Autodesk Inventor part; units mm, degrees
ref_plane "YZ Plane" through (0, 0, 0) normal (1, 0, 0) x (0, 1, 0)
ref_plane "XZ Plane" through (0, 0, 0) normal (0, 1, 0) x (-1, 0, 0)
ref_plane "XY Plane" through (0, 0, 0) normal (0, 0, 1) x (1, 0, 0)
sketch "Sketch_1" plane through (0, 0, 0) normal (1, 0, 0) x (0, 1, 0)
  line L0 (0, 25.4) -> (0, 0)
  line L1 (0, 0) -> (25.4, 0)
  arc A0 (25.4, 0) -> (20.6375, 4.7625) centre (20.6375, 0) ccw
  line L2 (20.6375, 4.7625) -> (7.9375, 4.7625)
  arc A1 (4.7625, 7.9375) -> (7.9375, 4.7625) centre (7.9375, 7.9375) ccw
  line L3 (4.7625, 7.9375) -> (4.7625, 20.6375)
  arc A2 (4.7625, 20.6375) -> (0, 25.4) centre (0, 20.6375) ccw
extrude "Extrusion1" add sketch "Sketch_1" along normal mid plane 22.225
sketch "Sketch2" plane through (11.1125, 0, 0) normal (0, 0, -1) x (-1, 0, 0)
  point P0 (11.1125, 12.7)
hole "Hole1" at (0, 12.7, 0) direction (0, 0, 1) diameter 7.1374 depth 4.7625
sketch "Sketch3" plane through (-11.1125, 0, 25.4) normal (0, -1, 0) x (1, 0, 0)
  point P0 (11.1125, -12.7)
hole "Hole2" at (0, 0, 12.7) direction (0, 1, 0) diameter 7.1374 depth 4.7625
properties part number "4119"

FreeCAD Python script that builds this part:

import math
import FreeCAD as App
import Part
import Sketcher
from FreeCAD import Vector
Q = App.Units.Quantity

doc = App.newDocument("Part")
body = doc.addObject("PartDesign::Body", "Body")

# Sketch on YZ plane
sketch1 = doc.addObject("Sketcher::SketchObject", "Sketch")
body.addObject(sketch1)
sketch1.AttachmentSupport = (doc.YZ_Plane, [""])
sketch1.MapMode = "FlatFace"
sketch1.addGeometry([
    Part.ArcOfCircle(Part.Circle(Vector(0, 20.6375, 0), Vector(0, 0, 1), 4.7625), math.radians(0), math.radians(90)),  # 0
    Part.LineSegment(Vector(0, 25.4, 0), Vector(0, 0, 0)),  # 1
    Part.LineSegment(Vector(0, 0, 0), Vector(25.4, 0, 0)),  # 2
    Part.ArcOfCircle(Part.Circle(Vector(20.6375, 0, 0), Vector(0, 0, 1), 4.7625), math.radians(0), math.radians(90)),  # 3
    Part.LineSegment(Vector(20.6375, 4.7625, 0), Vector(7.9375, 4.7625, 0)),  # 4
    Part.ArcOfCircle(Part.Circle(Vector(7.9375, 7.9375, 0), Vector(0, 0, 1), 3.175), math.radians(180), math.radians(270)),  # 5
    Part.LineSegment(Vector(4.7625, 7.9375, 0), Vector(4.7625, 20.6375, 0)),  # 6
], False)
sketch1.addConstraint([
    Sketcher.Constraint("Coincident", 0, 2, 1, 1),
    Sketcher.Constraint("Coincident", 1, 2, 2, 1),
    Sketcher.Constraint("Coincident", 2, 2, 3, 1),
    Sketcher.Constraint("Tangent", 3, 2, 4, 1),
    Sketcher.Constraint("Tangent", 4, 2, 5, 2),
    Sketcher.Constraint("Tangent", 5, 1, 6, 1),
    Sketcher.Constraint("Tangent", 6, 2, 0, 1),
    Sketcher.Constraint("Vertical", 1),
    Sketcher.Constraint("Horizontal", 2),
    Sketcher.Constraint("Horizontal", 4),
    Sketcher.Constraint("Vertical", 6),
    Sketcher.Constraint("Coincident", 1, 2, -1, 1),
    Sketcher.Constraint("Equal", 0, 3),
    Sketcher.Constraint("PointOnObject", 0, 3, -2),
    Sketcher.Constraint("PointOnObject", 3, 3, -1),
    Sketcher.Constraint("Equal", 2, 1),
    Sketcher.Constraint("DistanceX", 2, 1, 2, 2, Q("1 in")),
    Sketcher.Constraint("DistanceX", 4, 2, 4, 1, Q("0.5 in")),
    Sketcher.Constraint("Radius", 0, Q("0.1875 in")),
])
pad1 = doc.addObject("PartDesign::Pad", "Pad")
body.addObject(pad1)
pad1.Profile = sketch1
pad1.Length = Q("0.875 in")
pad1.Midplane = True

# Sketch on XY plane
sketch2 = doc.addObject("Sketcher::SketchObject", "Sketch001")
body.addObject(sketch2)
sketch2.AttachmentSupport = (doc.XY_Plane, [""])
sketch2.MapMode = "FlatFace"
sketch2.addGeometry(Part.Circle(Vector(0, 12.7, 0), Vector(0, 0, 1), 3.5687), False)
sketch2.addConstraint([
    Sketcher.Constraint("PointOnObject", 0, 3, -2),
    Sketcher.Constraint("Diameter", 0, Q("0.281 in")),
    Sketcher.Constraint("DistanceY", -1, 1, 0, 3, Q("0.5 in")),
])
doc.recompute()
hole = doc.addObject("PartDesign::Hole", "Hole")
body.addObject(hole)
hole.Profile = sketch2
hole.ThreadType = "None"
hole.Diameter = Q("0.281 in")
hole.DepthType = "Dimension"
hole.Depth = Q("0.1875 in")
hole.DrillPoint = "Flat"
hole.Reversed = True

# Sketch on XZ plane
sketch3 = doc.addObject("Sketcher::SketchObject", "Sketch002")
body.addObject(sketch3)
sketch3.AttachmentSupport = (doc.XZ_Plane, [""])
sketch3.MapMode = "FlatFace"
sketch3.addGeometry(Part.Circle(Vector(0, 12.7, 0), Vector(0, 0, 1), 3.5687), False)
sketch3.addConstraint([
    Sketcher.Constraint("PointOnObject", 0, 3, -2),
    Sketcher.Constraint("Diameter", 0, Q("0.281 in")),
    Sketcher.Constraint("DistanceY", -1, 1, 0, 3, Q("0.5 in")),
])
doc.recompute()
hole2 = doc.addObject("PartDesign::Hole", "Hole001")
body.addObject(hole2)
hole2.Profile = sketch3
hole2.ThreadType = "None"
hole2.Diameter = Q("0.281 in")
hole2.DepthType = "Dimension"
hole2.Depth = Q("0.1875 in")
hole2.DrillPoint = "Flat"

doc.recompute()
